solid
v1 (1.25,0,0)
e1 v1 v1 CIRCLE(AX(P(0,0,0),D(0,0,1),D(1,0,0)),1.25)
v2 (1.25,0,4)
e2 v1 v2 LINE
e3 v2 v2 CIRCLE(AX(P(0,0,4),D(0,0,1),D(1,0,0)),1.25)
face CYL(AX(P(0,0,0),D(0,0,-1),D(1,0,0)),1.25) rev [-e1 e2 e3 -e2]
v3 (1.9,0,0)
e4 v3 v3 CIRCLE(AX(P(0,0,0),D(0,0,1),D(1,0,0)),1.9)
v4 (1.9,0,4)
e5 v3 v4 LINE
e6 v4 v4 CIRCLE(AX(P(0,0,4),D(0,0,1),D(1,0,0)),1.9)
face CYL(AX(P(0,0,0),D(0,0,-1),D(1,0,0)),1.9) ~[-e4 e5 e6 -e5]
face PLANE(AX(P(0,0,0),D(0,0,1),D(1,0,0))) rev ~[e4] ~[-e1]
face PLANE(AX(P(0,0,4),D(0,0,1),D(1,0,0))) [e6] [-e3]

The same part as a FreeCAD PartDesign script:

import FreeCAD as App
import Part
import Sketcher
from FreeCAD import Vector
Q = App.Units.Quantity

doc = App.newDocument("Part")
body = doc.addObject("PartDesign::Body", "Body")

# Sketch on XY plane
sketch1 = body.newObject("Sketcher::SketchObject", "Sketch")
sketch1.AttachmentSupport = (doc.getObject("XY_Plane"), [""])
sketch1.MapMode = "FlatFace"
sketch1.addGeometry([
    Part.Circle(Vector(0, 0, 0), Vector(0, 0, 1), 1.9),
    Part.Circle(Vector(0, 0, 0), Vector(0, 0, 1), 1.25),
], False)
sketch1.addConstraint([
    Sketcher.Constraint("Coincident", 0, 3, -1, 1),
    Sketcher.Constraint("Coincident", 1, 3, -1, 1),
    Sketcher.Constraint("Diameter", 0, Q("3.8 mm")),
    Sketcher.Constraint("Diameter", 1, Q("2.5 mm")),
])
pad1 = body.newObject("PartDesign::Pad", "Pad")
pad1.Profile = sketch1
pad1.Length = 4

doc.recompute()
